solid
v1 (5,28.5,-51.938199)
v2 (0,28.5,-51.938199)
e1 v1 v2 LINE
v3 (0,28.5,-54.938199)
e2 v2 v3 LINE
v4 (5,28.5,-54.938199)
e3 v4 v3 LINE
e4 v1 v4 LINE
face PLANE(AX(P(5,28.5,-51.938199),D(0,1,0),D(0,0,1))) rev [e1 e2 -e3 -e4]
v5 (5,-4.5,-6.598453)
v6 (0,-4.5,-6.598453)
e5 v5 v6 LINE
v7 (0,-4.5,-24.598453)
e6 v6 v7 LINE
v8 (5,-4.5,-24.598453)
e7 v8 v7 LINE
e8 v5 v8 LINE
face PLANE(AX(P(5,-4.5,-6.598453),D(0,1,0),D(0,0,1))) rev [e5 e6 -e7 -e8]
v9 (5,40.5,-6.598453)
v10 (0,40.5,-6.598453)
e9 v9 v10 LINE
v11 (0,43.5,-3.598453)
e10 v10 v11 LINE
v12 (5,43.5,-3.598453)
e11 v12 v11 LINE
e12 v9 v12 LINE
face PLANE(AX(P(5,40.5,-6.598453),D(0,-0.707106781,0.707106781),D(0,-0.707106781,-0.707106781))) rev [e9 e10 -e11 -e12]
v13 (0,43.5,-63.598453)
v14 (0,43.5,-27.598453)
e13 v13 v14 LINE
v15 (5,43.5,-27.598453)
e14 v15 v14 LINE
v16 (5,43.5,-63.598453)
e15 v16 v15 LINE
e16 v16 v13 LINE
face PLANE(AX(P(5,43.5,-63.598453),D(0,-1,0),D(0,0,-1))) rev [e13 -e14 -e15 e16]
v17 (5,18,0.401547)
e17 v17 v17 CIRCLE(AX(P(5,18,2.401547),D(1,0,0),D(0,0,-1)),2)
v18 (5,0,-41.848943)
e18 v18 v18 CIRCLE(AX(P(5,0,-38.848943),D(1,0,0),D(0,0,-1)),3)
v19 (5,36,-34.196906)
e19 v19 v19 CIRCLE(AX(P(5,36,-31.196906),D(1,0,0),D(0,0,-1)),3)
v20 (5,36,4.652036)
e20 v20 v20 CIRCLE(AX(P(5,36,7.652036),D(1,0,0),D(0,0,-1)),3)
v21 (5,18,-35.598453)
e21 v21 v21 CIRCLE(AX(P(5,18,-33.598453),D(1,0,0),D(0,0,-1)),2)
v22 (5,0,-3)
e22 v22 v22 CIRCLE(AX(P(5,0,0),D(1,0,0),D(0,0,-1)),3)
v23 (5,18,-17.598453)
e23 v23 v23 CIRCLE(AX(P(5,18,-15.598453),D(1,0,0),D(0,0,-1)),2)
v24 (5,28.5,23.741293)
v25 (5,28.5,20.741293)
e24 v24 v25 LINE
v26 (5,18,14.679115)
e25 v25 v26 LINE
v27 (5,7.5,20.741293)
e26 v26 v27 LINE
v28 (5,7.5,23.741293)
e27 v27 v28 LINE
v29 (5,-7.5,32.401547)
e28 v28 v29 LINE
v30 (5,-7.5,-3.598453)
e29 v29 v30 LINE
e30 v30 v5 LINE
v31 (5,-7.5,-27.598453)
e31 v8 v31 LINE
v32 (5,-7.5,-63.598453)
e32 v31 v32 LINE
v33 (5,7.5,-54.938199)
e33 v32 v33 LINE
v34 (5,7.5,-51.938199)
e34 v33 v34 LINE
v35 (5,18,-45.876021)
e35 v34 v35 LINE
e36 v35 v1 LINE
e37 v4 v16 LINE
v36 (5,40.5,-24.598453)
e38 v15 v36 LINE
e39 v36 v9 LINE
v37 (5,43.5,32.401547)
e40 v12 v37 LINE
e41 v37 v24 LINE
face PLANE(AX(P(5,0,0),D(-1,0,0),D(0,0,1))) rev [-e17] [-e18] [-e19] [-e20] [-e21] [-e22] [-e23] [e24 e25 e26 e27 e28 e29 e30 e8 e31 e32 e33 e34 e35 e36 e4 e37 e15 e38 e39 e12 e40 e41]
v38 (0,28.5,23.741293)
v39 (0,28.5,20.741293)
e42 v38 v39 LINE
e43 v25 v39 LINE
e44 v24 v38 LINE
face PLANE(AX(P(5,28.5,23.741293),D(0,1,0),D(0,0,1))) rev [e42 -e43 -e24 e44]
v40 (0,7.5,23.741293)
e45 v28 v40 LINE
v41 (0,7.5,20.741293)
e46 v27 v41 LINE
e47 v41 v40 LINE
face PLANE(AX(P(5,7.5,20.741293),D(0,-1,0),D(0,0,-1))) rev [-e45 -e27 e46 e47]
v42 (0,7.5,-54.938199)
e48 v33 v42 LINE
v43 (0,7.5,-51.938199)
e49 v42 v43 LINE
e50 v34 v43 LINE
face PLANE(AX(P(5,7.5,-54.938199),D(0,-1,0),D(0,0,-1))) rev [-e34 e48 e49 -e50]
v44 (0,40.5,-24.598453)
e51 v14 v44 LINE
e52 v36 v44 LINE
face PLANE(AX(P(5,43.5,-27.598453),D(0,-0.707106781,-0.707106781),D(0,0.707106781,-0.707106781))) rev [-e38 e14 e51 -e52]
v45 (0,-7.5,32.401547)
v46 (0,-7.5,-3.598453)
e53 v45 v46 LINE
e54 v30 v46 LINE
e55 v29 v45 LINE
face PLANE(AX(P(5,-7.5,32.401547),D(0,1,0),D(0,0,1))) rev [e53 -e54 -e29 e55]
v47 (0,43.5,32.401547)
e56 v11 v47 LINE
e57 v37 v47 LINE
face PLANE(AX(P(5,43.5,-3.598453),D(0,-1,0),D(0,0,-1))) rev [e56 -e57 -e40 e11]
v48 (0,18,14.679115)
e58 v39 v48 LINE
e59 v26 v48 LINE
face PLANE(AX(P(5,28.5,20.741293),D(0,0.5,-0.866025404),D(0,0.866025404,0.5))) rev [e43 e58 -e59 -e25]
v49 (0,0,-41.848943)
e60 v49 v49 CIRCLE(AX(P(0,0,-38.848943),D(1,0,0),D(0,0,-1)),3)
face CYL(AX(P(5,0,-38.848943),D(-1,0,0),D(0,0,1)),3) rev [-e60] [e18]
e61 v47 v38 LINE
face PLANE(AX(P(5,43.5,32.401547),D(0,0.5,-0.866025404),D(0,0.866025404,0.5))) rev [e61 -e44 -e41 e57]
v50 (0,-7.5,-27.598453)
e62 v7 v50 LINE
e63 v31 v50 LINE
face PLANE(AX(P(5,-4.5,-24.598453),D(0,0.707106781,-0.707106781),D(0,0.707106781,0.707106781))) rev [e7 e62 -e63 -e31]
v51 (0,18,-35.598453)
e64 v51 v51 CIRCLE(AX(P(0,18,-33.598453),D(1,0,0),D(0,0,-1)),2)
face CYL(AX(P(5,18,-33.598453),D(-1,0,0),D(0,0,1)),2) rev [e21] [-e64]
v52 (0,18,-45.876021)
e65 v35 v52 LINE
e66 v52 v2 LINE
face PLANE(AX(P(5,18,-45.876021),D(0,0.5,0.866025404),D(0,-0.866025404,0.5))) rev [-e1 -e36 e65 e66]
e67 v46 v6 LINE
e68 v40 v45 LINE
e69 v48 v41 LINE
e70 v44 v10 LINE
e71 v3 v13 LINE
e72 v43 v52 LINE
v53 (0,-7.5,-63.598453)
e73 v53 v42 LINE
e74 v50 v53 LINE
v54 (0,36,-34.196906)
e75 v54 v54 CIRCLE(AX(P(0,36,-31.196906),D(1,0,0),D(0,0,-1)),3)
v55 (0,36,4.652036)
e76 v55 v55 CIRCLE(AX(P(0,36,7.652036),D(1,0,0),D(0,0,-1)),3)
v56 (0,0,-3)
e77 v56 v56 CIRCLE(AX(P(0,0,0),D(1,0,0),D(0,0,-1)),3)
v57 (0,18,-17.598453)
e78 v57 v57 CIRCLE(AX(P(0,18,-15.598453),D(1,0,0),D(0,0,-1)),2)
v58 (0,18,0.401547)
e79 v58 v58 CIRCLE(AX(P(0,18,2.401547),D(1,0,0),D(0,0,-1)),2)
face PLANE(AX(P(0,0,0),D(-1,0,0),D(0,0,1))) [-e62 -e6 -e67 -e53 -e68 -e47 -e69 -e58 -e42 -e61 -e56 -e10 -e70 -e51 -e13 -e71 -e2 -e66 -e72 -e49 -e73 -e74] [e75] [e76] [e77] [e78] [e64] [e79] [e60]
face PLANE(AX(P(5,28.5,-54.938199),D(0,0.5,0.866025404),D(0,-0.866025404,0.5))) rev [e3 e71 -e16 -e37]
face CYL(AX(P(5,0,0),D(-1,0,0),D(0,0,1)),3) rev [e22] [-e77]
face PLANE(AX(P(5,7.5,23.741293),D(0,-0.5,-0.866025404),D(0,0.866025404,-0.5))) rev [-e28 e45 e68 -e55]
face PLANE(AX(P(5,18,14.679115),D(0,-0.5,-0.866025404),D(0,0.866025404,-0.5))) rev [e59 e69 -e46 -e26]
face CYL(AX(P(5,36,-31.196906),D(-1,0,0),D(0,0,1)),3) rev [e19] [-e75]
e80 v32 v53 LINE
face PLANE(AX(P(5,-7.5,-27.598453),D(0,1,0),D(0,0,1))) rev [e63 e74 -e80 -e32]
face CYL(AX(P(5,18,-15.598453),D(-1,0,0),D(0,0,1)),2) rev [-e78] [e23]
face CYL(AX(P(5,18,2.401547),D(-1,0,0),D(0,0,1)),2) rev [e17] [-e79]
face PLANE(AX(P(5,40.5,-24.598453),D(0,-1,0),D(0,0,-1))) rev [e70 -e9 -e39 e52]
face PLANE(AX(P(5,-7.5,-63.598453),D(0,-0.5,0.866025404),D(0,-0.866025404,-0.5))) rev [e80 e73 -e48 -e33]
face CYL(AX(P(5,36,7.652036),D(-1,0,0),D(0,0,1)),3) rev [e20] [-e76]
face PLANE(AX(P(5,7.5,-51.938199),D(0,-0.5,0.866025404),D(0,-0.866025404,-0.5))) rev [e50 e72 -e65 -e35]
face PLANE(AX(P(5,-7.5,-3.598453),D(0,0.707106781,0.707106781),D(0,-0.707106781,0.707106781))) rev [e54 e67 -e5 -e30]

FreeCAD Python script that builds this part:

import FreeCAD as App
import Part
import Sketcher
from FreeCAD import Vector
Q = App.Units.Quantity

doc = App.newDocument("Part")
body = doc.addObject("PartDesign::Body", "Body")

# Sketch on YZ plane
sketch1 = body.newObject("Sketcher::SketchObject", "Sketch")
sketch1.AttachmentSupport = (doc.getObject("YZ_Plane"), [""])
sketch1.MapMode = "FlatFace"
sketch1.addGeometry([
    Part.LineSegment(Vector(-7.5, 32.401547, 0), Vector(-7.5, -3.598453, 0)),  # 0
    Part.LineSegment(Vector(-7.5, -3.598453, 0), Vector(-4.5, -6.598453, 0)),  # 1
    Part.LineSegment(Vector(-4.5, -6.598453, 0), Vector(-4.5, -24.598453, 0)),  # 2
    Part.LineSegment(Vector(-4.5, -24.598453, 0), Vector(-7.5, -27.598453, 0)),  # 3
    Part.LineSegment(Vector(-7.5, -27.598453, 0), Vector(-7.5, -63.598453, 0)),  # 4
    Part.LineSegment(Vector(-7.5, -63.598453, 0), Vector(7.5, -54.938199, 0)),  # 5
    Part.LineSegment(Vector(7.5, -54.938199, 0), Vector(7.5, -51.938199, 0)),  # 6
    Part.LineSegment(Vector(7.5, -51.938199, 0), Vector(18, -45.876021, 0)),  # 7
    Part.LineSegment(Vector(18, -45.876021, 0), Vector(28.5, -51.938199, 0)),  # 8
    Part.LineSegment(Vector(28.5, -51.938199, 0), Vector(28.5, -54.938199, 0)),  # 9
    Part.LineSegment(Vector(28.5, -54.938199, 0), Vector(43.5, -63.598453, 0)),  # 10
    Part.LineSegment(Vector(43.5, -63.598453, 0), Vector(43.5, -27.598453, 0)),  # 11
    Part.LineSegment(Vector(43.5, -27.598453, 0), Vector(40.5, -24.598453, 0)),  # 12
    Part.LineSegment(Vector(40.5, -24.598453, 0), Vector(40.5, -6.598453, 0)),  # 13
    Part.LineSegment(Vector(40.5, -6.598453, 0), Vector(43.5, -3.598453, 0)),  # 14
    Part.LineSegment(Vector(43.5, -3.598453, 0), Vector(43.5, 32.401547, 0)),  # 15
    Part.LineSegment(Vector(43.5, 32.401547, 0), Vector(28.5, 23.741293, 0)),  # 16
    Part.LineSegment(Vector(28.5, 23.741293, 0), Vector(28.5, 20.741293, 0)),  # 17
    Part.LineSegment(Vector(28.5, 20.741293, 0), Vector(18, 14.679115, 0)),  # 18
    Part.LineSegment(Vector(18, 14.679115, 0), Vector(7.5, 20.741293, 0)),  # 19
    Part.LineSegment(Vector(7.5, 20.741293, 0), Vector(7.5, 23.741293, 0)),  # 20
    Part.LineSegment(Vector(7.5, 23.741293, 0), Vector(-7.5, 32.401547, 0)),  # 21
    Part.Circle(Vector(0, 0, 0), Vector(0, 0, 1), 3),  # 22
    Part.Circle(Vector(0, -38.848943, 0), Vector(0, 0, 1), 3),  # 23
    Part.Circle(Vector(18, 2.401547, 0), Vector(0, 0, 1), 2),  # 24
    Part.Circle(Vector(18, -15.598453, 0), Vector(0, 0, 1), 2),  # 25
    Part.Circle(Vector(36, 7.652036, 0), Vector(0, 0, 1), 3),  # 26
    Part.Circle(Vector(18, -33.598453, 0), Vector(0, 0, 1), 2),  # 27
    Part.Circle(Vector(36, -31.196906, 0), Vector(0, 0, 1), 3),  # 28
], False)
sketch1.addConstraint([
    Sketcher.Constraint("Coincident", 0, 2, 1, 1),
    Sketcher.Constraint("Coincident", 1, 2, 2, 1),
    Sketcher.Constraint("Coincident", 2, 2, 3, 1),
    Sketcher.Constraint("Coincident", 3, 2, 4, 1),
    Sketcher.Constraint("Coincident", 4, 2, 5, 1),
    Sketcher.Constraint("Coincident", 5, 2, 6, 1),
    Sketcher.Constraint("Coincident", 6, 2, 7, 1),
    Sketcher.Constraint("Coincident", 7, 2, 8, 1),
    Sketcher.Constraint("Coincident", 8, 2, 9, 1),
    Sketcher.Constraint("Coincident", 9, 2, 10, 1),
    Sketcher.Constraint("Coincident", 10, 2, 11, 1),
    Sketcher.Constraint("Coincident", 11, 2, 12, 1),
    Sketcher.Constraint("Coincident", 12, 2, 13, 1),
    Sketcher.Constraint("Coincident", 13, 2, 14, 1),
    Sketcher.Constraint("Coincident", 14, 2, 15, 1),
    Sketcher.Constraint("Coincident", 15, 2, 16, 1),
    Sketcher.Constraint("Coincident", 16, 2, 17, 1),
    Sketcher.Constraint("Coincident", 17, 2, 18, 1),
    Sketcher.Constraint("Coincident", 18, 2, 19, 1),
    Sketcher.Constraint("Coincident", 19, 2, 20, 1),
    Sketcher.Constraint("Coincident", 20, 2, 21, 1),
    Sketcher.Constraint("Coincident", 21, 2, 0, 1),
    Sketcher.Constraint("Vertical", 0),
    Sketcher.Constraint("Vertical", 2),
    Sketcher.Constraint("Vertical", 4),
    Sketcher.Constraint("Vertical", 6),
    Sketcher.Constraint("Vertical", 9),
    Sketcher.Constraint("Vertical", 11),
    Sketcher.Constraint("Vertical", 13),
    Sketcher.Constraint("Vertical", 15),
    Sketcher.Constraint("Vertical", 17),
    Sketcher.Constraint("Vertical", 20),
    Sketcher.Constraint("Coincident", 22, 3, -1, 1),
    Sketcher.Constraint("Equal", 22, 23),
    Sketcher.Constraint("Equal", 24, 25),
    Sketcher.Constraint("Equal", 23, 26),
    Sketcher.Constraint("Equal", 25, 27),
    Sketcher.Constraint("Equal", 26, 28),
    Sketcher.Constraint("PointOnObject", 23, 3, -2),
    Sketcher.Constraint("Perpendicular", 1, 3),
    Sketcher.Constraint("Parallel", 5, 7),
    Sketcher.Constraint("Parallel", 8, 10),
    Sketcher.Constraint("Perpendicular", 3, 12),
    Sketcher.Constraint("Perpendicular", 12, 14),
    Sketcher.Constraint("Parallel", 7, 16),
    Sketcher.Constraint("Parallel", 16, 18),
    Sketcher.Constraint("Parallel", 10, 19),
    Sketcher.Constraint("Parallel", 19, 21),
    Sketcher.Constraint("Horizontal", 6, 2, 8, 2),
    Sketcher.Constraint("Horizontal", 5, 2, 9, 2),
    Sketcher.Constraint("Horizontal", 4, 2, 10, 2),
    Sketcher.Constraint("Horizontal", 3, 2, 11, 2),
    Sketcher.Constraint("Horizontal", 2, 2, 12, 2),
    Sketcher.Constraint("Horizontal", 1, 2, 13, 2),
    Sketcher.Constraint("Horizontal", 0, 2, 14, 2),
    Sketcher.Constraint("Horizontal", 17, 2, 19, 2),
    Sketcher.Constraint("Horizontal", 16, 2, 20, 2),
    Sketcher.Constraint("Horizontal", 15, 2, 21, 2),
    Sketcher.Constraint("Vertical", 24, 3, 25, 3),
    Sketcher.Constraint("Vertical", 25, 3, 27, 3),
    Sketcher.Constraint("Vertical", 26, 3, 28, 3),
    Sketcher.Constraint("Vertical", 0, 2, 3, 2),
    Sketcher.Constraint("Vertical", 27, 3, 7, 2),
    Sketcher.Constraint("Vertical", 11, 2, 14, 2),
    Sketcher.Constraint("Vertical", 9, 2, 16, 2),
    Sketcher.Constraint("Vertical", 7, 2, 18, 2),
    Sketcher.Constraint("Equal", 0, 4),
    Sketcher.Constraint("Equal", 9, 17),
    Sketcher.Constraint("Diameter", 22, 6.0),
    Sketcher.Constraint("Diameter", 24, 4.0),
    Sketcher.Constraint("DistanceY", 0, 2, 0, 1, 36.0),
    Sketcher.Constraint("DistanceY", 2, 2, 2, 1, 18.0),
    Sketcher.Constraint("DistanceY", 6, 1, 6, 2, 3.0),
    Sketcher.Constraint("Angle", 5, Q("30 deg")),
    Sketcher.Constraint("DistanceX", -1, 1, 24, 3, 18.0),
    Sketcher.Constraint("DistanceX", -1, 1, 26, 3, 36.0),
    Sketcher.Constraint("DistanceY", 25, 3, 24, 3, 18.0),
    Sketcher.Constraint("DistanceY", 27, 3, 25, 3, 18.0),
    Sketcher.Constraint("DistanceY", 0, 2, 24, 3, 6.0),
    Sketcher.Constraint("DistanceX", 0, 2, 1, 2, 3.0),
    Sketcher.Constraint("DistanceX", 4, 2, 5, 2, 15.0),
    Sketcher.Constraint("DistanceX", 6, 2, 8, 2, 21.0),
    Sketcher.Constraint("DistanceY", 5, 2, -1, 1, 54.938199),
    Sketcher.Constraint("DistanceY", 23, 3, 24, 3, 41.250489),
    Sketcher.Constraint("DistanceY", 24, 3, 26, 3, 5.250489),
    Sketcher.Constraint("DistanceY", 28, 3, -1, 1, 31.196906),
])
pad1 = body.newObject("PartDesign::Pad", "Pad")
pad1.Profile = sketch1
pad1.Length = 5

doc.recompute()
